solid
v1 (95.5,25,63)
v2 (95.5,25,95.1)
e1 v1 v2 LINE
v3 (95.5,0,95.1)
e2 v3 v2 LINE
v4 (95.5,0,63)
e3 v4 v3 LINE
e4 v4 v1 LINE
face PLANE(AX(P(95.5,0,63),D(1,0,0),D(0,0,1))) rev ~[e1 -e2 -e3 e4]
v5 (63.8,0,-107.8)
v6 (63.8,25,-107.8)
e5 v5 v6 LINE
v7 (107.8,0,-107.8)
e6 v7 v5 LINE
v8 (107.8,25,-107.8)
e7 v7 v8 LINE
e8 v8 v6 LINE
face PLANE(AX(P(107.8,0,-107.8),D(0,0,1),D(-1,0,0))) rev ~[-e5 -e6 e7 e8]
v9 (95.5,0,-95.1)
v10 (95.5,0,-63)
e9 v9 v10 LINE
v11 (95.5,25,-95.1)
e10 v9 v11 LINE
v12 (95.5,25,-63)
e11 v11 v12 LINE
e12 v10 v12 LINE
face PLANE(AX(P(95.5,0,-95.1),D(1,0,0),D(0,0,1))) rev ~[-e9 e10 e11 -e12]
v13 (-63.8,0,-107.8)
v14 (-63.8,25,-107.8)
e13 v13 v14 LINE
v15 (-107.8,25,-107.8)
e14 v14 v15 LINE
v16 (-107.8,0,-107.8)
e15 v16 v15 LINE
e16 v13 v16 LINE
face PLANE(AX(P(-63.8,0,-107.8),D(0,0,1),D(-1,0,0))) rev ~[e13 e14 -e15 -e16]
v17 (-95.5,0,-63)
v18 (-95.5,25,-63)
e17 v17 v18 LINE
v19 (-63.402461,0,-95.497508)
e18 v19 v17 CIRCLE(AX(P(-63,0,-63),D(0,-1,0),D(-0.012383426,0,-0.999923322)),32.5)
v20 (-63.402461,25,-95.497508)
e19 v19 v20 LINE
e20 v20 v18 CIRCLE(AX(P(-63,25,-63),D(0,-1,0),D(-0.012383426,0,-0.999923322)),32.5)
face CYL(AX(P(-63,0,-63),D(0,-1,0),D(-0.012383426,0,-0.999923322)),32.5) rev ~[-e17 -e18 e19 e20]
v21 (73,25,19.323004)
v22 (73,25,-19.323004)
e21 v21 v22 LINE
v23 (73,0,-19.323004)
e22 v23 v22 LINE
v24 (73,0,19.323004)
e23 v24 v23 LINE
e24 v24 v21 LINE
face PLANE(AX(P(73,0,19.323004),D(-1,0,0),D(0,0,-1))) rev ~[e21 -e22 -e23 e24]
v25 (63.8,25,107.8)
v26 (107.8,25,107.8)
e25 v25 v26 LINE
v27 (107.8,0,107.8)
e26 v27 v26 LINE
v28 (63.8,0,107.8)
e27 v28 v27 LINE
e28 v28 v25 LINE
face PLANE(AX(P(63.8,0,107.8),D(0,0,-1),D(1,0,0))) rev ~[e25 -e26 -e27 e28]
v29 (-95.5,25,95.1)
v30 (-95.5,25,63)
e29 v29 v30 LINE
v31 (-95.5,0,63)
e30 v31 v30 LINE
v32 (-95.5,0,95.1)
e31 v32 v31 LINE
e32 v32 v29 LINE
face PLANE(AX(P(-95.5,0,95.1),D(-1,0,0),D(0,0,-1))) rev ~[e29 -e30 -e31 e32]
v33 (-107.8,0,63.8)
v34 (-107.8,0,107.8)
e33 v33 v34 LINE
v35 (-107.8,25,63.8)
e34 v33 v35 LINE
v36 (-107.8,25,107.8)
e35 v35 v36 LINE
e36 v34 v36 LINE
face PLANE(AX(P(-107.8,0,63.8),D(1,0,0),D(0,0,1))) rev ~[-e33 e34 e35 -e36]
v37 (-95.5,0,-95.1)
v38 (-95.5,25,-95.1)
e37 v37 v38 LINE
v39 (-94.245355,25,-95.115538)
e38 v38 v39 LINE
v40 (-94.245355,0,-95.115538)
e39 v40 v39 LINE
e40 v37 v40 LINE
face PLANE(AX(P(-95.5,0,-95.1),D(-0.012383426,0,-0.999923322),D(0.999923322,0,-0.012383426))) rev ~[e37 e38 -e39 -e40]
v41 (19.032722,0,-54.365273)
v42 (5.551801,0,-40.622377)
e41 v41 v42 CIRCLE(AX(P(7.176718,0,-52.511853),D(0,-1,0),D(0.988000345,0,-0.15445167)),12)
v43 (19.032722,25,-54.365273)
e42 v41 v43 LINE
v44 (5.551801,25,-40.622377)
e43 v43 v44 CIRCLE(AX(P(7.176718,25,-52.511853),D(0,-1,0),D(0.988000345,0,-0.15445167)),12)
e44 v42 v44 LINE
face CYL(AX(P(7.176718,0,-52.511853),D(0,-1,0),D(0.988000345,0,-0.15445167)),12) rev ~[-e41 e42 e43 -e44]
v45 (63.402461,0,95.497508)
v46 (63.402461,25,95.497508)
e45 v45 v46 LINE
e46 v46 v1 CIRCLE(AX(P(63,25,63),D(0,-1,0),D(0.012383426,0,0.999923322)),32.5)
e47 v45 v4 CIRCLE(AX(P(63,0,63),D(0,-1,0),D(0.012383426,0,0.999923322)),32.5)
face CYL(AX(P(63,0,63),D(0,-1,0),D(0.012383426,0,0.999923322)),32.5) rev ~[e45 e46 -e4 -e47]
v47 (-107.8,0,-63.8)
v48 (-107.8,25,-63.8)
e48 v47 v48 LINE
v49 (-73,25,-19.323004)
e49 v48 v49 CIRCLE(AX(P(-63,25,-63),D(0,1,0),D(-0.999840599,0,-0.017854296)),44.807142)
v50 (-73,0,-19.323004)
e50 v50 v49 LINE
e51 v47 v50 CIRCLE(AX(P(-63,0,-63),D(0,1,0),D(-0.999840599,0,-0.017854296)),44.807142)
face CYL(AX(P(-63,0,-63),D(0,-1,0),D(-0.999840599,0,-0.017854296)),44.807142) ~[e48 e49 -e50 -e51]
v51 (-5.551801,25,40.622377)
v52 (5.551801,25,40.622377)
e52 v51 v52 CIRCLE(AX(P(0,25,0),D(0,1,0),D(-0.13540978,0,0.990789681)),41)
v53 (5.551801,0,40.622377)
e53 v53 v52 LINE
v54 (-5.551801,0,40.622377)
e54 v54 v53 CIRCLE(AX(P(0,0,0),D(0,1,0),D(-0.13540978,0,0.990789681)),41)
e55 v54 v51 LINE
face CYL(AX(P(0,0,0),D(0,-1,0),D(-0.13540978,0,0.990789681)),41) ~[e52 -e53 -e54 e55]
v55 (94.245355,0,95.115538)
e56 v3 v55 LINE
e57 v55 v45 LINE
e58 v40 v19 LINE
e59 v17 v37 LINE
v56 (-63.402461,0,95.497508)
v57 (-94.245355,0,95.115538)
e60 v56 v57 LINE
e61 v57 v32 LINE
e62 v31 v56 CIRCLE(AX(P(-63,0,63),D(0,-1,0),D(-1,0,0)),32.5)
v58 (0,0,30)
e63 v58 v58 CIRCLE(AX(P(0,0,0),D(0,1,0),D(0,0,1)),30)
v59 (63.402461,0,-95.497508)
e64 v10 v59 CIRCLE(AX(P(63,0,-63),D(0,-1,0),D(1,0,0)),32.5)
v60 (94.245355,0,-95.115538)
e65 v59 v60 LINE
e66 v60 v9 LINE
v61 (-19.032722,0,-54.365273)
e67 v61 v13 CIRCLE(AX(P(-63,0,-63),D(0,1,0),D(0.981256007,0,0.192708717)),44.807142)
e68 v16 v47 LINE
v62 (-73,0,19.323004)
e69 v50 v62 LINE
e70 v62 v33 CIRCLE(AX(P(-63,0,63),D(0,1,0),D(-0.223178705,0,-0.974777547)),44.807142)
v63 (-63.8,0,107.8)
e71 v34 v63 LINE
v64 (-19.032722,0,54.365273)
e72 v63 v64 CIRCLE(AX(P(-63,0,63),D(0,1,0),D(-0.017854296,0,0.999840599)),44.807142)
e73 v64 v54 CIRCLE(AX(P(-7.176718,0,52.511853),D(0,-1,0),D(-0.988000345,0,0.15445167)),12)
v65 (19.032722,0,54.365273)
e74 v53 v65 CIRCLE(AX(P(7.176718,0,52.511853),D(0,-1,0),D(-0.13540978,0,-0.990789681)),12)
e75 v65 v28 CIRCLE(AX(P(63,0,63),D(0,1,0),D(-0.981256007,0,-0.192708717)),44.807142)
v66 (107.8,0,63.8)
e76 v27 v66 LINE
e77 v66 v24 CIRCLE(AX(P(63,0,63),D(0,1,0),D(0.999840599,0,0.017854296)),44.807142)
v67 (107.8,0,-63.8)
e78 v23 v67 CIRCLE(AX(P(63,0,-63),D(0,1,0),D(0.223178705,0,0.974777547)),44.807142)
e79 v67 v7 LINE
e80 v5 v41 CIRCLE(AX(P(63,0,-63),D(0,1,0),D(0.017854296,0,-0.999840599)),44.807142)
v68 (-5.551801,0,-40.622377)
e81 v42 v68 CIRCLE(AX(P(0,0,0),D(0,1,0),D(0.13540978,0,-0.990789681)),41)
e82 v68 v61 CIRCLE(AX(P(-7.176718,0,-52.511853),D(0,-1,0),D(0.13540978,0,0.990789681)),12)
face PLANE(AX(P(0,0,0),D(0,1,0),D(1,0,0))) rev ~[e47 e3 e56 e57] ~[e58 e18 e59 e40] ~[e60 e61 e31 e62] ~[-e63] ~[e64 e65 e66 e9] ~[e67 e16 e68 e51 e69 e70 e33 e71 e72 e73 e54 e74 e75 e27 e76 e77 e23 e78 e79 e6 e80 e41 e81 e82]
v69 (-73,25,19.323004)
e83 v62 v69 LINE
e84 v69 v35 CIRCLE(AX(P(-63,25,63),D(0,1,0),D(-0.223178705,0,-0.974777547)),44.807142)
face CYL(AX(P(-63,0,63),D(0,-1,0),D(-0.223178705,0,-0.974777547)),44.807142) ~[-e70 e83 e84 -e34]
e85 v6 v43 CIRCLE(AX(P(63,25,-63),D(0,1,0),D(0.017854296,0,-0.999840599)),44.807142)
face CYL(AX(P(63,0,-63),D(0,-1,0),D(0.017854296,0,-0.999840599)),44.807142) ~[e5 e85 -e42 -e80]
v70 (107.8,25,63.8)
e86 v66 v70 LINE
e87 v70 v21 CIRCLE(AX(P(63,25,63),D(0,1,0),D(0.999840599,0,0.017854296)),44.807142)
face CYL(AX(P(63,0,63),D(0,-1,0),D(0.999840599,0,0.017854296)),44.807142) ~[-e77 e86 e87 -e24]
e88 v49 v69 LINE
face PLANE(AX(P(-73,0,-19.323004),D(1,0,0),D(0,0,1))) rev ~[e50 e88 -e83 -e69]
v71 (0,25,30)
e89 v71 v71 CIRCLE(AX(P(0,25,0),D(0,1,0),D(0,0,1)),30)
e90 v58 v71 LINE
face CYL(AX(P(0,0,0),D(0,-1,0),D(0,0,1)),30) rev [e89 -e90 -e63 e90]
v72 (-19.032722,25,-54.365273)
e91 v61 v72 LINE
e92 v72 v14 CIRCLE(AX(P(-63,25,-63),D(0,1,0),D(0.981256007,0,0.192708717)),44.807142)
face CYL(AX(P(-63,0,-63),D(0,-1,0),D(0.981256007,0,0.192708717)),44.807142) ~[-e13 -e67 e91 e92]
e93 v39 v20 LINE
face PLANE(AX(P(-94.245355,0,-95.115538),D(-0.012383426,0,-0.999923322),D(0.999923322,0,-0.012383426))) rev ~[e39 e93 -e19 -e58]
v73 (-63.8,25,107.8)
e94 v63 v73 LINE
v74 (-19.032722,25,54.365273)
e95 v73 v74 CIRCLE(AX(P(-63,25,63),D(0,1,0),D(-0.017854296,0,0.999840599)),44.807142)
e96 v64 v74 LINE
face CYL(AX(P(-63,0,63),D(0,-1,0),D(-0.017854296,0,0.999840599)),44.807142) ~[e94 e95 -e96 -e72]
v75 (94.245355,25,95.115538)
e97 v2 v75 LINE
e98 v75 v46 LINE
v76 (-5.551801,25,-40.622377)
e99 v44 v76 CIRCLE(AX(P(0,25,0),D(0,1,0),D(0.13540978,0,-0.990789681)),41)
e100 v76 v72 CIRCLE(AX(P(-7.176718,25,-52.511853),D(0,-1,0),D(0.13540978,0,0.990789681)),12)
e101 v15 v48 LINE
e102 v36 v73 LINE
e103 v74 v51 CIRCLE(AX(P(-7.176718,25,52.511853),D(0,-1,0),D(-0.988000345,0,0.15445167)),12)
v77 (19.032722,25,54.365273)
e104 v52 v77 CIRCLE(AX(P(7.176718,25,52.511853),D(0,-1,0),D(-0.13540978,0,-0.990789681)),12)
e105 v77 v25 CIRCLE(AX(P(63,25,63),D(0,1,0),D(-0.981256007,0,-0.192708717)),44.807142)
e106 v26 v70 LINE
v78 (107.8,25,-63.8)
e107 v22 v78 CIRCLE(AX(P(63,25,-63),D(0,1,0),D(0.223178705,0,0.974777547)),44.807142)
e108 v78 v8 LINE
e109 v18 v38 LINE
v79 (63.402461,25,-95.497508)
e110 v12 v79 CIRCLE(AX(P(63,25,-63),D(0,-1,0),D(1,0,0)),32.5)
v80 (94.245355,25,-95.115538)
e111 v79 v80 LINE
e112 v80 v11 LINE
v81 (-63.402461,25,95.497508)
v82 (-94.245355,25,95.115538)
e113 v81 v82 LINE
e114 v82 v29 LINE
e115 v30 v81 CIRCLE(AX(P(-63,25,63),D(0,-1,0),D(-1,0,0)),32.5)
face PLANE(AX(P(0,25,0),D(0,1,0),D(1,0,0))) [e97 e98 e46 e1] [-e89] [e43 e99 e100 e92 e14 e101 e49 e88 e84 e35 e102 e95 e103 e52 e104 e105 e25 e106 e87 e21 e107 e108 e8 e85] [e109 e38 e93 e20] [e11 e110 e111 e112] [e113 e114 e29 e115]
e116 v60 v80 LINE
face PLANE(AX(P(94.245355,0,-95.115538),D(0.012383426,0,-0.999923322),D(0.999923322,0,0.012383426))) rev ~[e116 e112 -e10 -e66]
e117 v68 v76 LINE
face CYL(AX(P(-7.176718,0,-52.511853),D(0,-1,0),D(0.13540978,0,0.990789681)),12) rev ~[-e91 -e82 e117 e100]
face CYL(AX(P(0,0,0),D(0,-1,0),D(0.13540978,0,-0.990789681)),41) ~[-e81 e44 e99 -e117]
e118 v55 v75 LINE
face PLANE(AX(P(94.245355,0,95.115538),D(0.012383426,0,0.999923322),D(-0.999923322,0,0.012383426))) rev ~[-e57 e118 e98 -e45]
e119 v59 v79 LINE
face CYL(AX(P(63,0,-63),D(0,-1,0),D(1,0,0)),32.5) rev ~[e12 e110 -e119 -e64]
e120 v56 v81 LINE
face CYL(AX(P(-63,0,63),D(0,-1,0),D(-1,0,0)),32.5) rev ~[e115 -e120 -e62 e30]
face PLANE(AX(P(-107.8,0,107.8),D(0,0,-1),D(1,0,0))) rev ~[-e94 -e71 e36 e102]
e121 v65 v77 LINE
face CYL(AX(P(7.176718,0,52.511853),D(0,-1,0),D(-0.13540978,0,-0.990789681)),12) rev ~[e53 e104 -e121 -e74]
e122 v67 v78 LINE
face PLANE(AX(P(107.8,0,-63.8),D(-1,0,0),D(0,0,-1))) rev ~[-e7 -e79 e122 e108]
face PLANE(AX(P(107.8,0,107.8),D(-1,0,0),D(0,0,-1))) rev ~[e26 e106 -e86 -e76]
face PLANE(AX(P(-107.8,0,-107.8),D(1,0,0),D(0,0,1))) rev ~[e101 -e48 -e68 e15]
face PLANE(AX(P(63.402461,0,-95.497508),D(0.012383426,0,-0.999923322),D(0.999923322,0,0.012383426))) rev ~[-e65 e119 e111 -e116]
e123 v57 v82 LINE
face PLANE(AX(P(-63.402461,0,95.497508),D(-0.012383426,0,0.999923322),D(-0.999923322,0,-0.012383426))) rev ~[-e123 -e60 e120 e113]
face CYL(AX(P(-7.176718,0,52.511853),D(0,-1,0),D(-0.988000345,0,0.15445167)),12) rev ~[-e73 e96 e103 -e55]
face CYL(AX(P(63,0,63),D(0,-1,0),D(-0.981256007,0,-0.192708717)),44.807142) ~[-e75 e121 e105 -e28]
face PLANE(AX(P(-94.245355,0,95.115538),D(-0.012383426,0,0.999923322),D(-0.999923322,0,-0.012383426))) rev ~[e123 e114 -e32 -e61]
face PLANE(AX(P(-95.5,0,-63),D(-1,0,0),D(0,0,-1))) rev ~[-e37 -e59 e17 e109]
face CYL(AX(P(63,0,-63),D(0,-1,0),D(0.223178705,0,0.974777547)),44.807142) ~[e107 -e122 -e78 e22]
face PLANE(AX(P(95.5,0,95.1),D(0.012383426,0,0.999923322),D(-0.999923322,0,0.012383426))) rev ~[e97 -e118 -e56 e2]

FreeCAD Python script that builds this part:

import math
import FreeCAD as App
import Part
import Sketcher

doc = App.newDocument("Part")
body = doc.addObject("PartDesign::Body", "Body")

sketch1 = body.newObject("Sketcher::SketchObject", "Sketch")
sketch1.AttachmentSupport = (doc.getObject("XZ_Plane"), [""])
sketch1.MapMode = "FlatFace"
sketch1.addGeometry([
    Part.LineSegment(App.Vector(-63.8, -107.8, 0), App.Vector(-107.8, -107.8, 0)),
    Part.LineSegment(App.Vector(-107.8, -107.8, 0), App.Vector(-107.8, -63.8, 0)),
    Part.ArcOfCircle(Part.Circle(App.Vector(-63, -63, 0), App.Vector(0, 0, 1), 44.8), math.radians(103), math.radians(181)),
    Part.LineSegment(App.Vector(-73, -19.3, 0), App.Vector(-73, 19.3, 0)),
    Part.ArcOfCircle(Part.Circle(App.Vector(-63, 63, 0), App.Vector(0, 0, 1), 44.8), math.radians(179), math.radians(257)),
    Part.LineSegment(App.Vector(-107.8, 63.8, 0), App.Vector(-107.8, 107.8, 0)),
    Part.LineSegment(App.Vector(-107.8, 107.8, 0), App.Vector(-63.8, 107.8, 0)),
    Part.ArcOfCircle(Part.Circle(App.Vector(-63, 63, 0), App.Vector(0, 0, 1), 44.8), math.radians(-11), math.radians(91)),
    Part.ArcOfCircle(Part.Circle(App.Vector(-7.2, 52.5, 0), App.Vector(0, 0, 1), 12), math.radians(171), math.radians(278)),
    Part.ArcOfCircle(Part.Circle(App.Vector(0, 0, 0), App.Vector(0, 0, 1), 41), math.radians(82.22), math.radians(97.78)),
    Part.ArcOfCircle(Part.Circle(App.Vector(7.2, 52.5, 0), App.Vector(0, 0, 1), 12), math.radians(-98), math.radians(9)),
    Part.ArcOfCircle(Part.Circle(App.Vector(63, 63, 0), App.Vector(0, 0, 1), 44.8), math.radians(89), math.radians(191)),
    Part.LineSegment(App.Vector(63.8, 107.8, 0), App.Vector(107.8, 107.8, 0)),
    Part.LineSegment(App.Vector(107.8, 107.8, 0), App.Vector(107.8, 63.8, 0)),
    Part.ArcOfCircle(Part.Circle(App.Vector(63, 63, 0), App.Vector(0, 0, 1), 44.8), math.radians(-77), math.radians(1)),
    Part.LineSegment(App.Vector(73, 19.3, 0), App.Vector(73, -19.3, 0)),
    Part.ArcOfCircle(Part.Circle(App.Vector(63, -63, 0), App.Vector(0, 0, 1), 44.8), math.radians(-1), math.radians(77)),
    Part.LineSegment(App.Vector(107.8, -63.8, 0), App.Vector(107.8, -107.8, 0)),
    Part.LineSegment(App.Vector(107.8, -107.8, 0), App.Vector(63.8, -107.8, 0)),
    Part.ArcOfCircle(Part.Circle(App.Vector(63, -63, 0), App.Vector(0, 0, 1), 44.8), math.radians(169), math.radians(271)),
    Part.ArcOfCircle(Part.Circle(App.Vector(7.2, -52.5, 0), App.Vector(0, 0, 1), 12), math.radians(-9), math.radians(98)),
    Part.ArcOfCircle(Part.Circle(App.Vector(0, 0, 0), App.Vector(0, 0, 1), 41), math.radians(-97.78), math.radians(-82.22)),
    Part.ArcOfCircle(Part.Circle(App.Vector(-7.2, -52.5, 0), App.Vector(0, 0, 1), 12), math.radians(82), math.radians(189)),
    Part.ArcOfCircle(Part.Circle(App.Vector(-63, -63, 0), App.Vector(0, 0, 1), 44.8), math.radians(-91), math.radians(11)),
    Part.LineSegment(App.Vector(-63.4, 95.5, 0), App.Vector(-94.2, 95.1, 0)),
    Part.LineSegment(App.Vector(-94.2, 95.1, 0), App.Vector(-95.5, 95.1, 0)),
    Part.LineSegment(App.Vector(-95.5, 95.1, 0), App.Vector(-95.5, 63, 0)),
    Part.ArcOfCircle(Part.Circle(App.Vector(-63, 63, 0), App.Vector(0, 0, 1), 32.5), math.radians(180), math.radians(451)),
    Part.LineSegment(App.Vector(95.5, 63, 0), App.Vector(95.5, 95.1, 0)),
    Part.LineSegment(App.Vector(95.5, 95.1, 0), App.Vector(94.2, 95.1, 0)),
    Part.LineSegment(App.Vector(94.2, 95.1, 0), App.Vector(63.4, 95.5, 0)),
    Part.ArcOfCircle(Part.Circle(App.Vector(63, 63, 0), App.Vector(0, 0, 1), 32.5), math.radians(89), math.radians(360)),
    Part.Circle(App.Vector(0, 0, 0), App.Vector(0, 0, 1), 30),
    Part.LineSegment(App.Vector(-95.5, -63, 0), App.Vector(-95.5, -95.1, 0)),
    Part.LineSegment(App.Vector(-95.5, -95.1, 0), App.Vector(-94.2, -95.1, 0)),
    Part.LineSegment(App.Vector(-94.2, -95.1, 0), App.Vector(-63.4, -95.5, 0)),
    Part.ArcOfCircle(Part.Circle(App.Vector(-63, -63, 0), App.Vector(0, 0, 1), 32.5), math.radians(-91), math.radians(180)),
    Part.LineSegment(App.Vector(63.4, -95.5, 0), App.Vector(94.2, -95.1, 0)),
    Part.LineSegment(App.Vector(94.2, -95.1, 0), App.Vector(95.5, -95.1, 0)),
    Part.LineSegment(App.Vector(95.5, -95.1, 0), App.Vector(95.5, -63, 0)),
    Part.ArcOfCircle(Part.Circle(App.Vector(63, -63, 0), App.Vector(0, 0, 1), 32.5), math.radians(0), math.radians(271)),
], False)
sketch1.addConstraint([
    Sketcher.Constraint("Coincident", 0, 2, 1, 1),
    Sketcher.Constraint("Coincident", 1, 2, 2, 2),
    Sketcher.Constraint("Coincident", 2, 1, 3, 1),
    Sketcher.Constraint("Coincident", 3, 2, 4, 2),
    Sketcher.Constraint("Coincident", 4, 1, 5, 1),
    Sketcher.Constraint("Coincident", 5, 2, 6, 1),
    Sketcher.Constraint("Coincident", 6, 2, 7, 2),
    Sketcher.Constraint("Coincident", 7, 1, 8, 1),
    Sketcher.Constraint("Tangent", 8, 2, 9, 2),
    Sketcher.Constraint("Tangent", 9, 1, 10, 1),
    Sketcher.Constraint("Coincident", 10, 2, 11, 2),
    Sketcher.Constraint("Coincident", 11, 1, 12, 1),
    Sketcher.Constraint("Coincident", 12, 2, 13, 1),
    Sketcher.Constraint("Coincident", 13, 2, 14, 2),
    Sketcher.Constraint("Coincident", 14, 1, 15, 1),
    Sketcher.Constraint("Coincident", 15, 2, 16, 2),
    Sketcher.Constraint("Coincident", 16, 1, 17, 1),
    Sketcher.Constraint("Coincident", 17, 2, 18, 1),
    Sketcher.Constraint("Coincident", 18, 2, 19, 2),
    Sketcher.Constraint("Coincident", 19, 1, 20, 1),
    Sketcher.Constraint("Tangent", 20, 2, 21, 2),
    Sketcher.Constraint("Tangent", 21, 1, 22, 1),
    Sketcher.Constraint("Coincident", 22, 2, 23, 2),
    Sketcher.Constraint("Coincident", 23, 1, 0, 1),
    Sketcher.Constraint("Coincident", 24, 2, 25, 1),
    Sketcher.Constraint("Coincident", 25, 2, 26, 1),
    Sketcher.Constraint("Tangent", 26, 2, 27, 1),
    Sketcher.Constraint("Tangent", 27, 2, 24, 1),
    Sketcher.Constraint("Coincident", 28, 2, 29, 1),
    Sketcher.Constraint("Coincident", 29, 2, 30, 1),
    Sketcher.Constraint("Tangent", 30, 2, 31, 1),
    Sketcher.Constraint("Tangent", 31, 2, 28, 1),
    Sketcher.Constraint("Coincident", 33, 2, 34, 1),
    Sketcher.Constraint("Coincident", 34, 2, 35, 1),
    Sketcher.Constraint("Tangent", 35, 2, 36, 1),
    Sketcher.Constraint("Tangent", 36, 2, 33, 1),
    Sketcher.Constraint("Coincident", 37, 2, 38, 1),
    Sketcher.Constraint("Coincident", 38, 2, 39, 1),
    Sketcher.Constraint("Tangent", 39, 2, 40, 1),
    Sketcher.Constraint("Tangent", 40, 2, 37, 1),
    Sketcher.Constraint("Horizontal", 0),
    Sketcher.Constraint("Vertical", 1),
    Sketcher.Constraint("Vertical", 3),
    Sketcher.Constraint("Vertical", 5),
    Sketcher.Constraint("Horizontal", 6),
    Sketcher.Constraint("Horizontal", 12),
    Sketcher.Constraint("Vertical", 13),
    Sketcher.Constraint("Vertical", 15),
    Sketcher.Constraint("Vertical", 17),
    Sketcher.Constraint("Horizontal", 18),
    Sketcher.Constraint("Vertical", 26),
    Sketcher.Constraint("Vertical", 28),
    Sketcher.Constraint("Vertical", 33),
    Sketcher.Constraint("Vertical", 39),
    Sketcher.Constraint("Coincident", 9, 3, -1, 1),
    Sketcher.Constraint("Coincident", 21, 3, -1, 1),
    Sketcher.Constraint("Coincident", 32, 3, -1, 1),
    Sketcher.Constraint("Coincident", 7, 3, 4, 3),
    Sketcher.Constraint("Coincident", 14, 3, 11, 3),
    Sketcher.Constraint("Coincident", 19, 3, 16, 3),
    Sketcher.Constraint("Coincident", 23, 3, 2, 3),
    Sketcher.Constraint("Coincident", 27, 3, 4, 3),
    Sketcher.Constraint("Coincident", 31, 3, 11, 3),
    Sketcher.Constraint("Coincident", 36, 3, 2, 3),
    Sketcher.Constraint("Coincident", 40, 3, 16, 3),
    Sketcher.Constraint("Equal", 2, 4),
    Sketcher.Constraint("Equal", 4, 7),
    Sketcher.Constraint("Equal", 8, 10),
    Sketcher.Constraint("Equal", 7, 11),
    Sketcher.Constraint("Equal", 11, 14),
    Sketcher.Constraint("Equal", 14, 16),
    Sketcher.Constraint("Equal", 16, 19),
    Sketcher.Constraint("Equal", 10, 20),
    Sketcher.Constraint("Equal", 9, 21),
    Sketcher.Constraint("Equal", 20, 22),
    Sketcher.Constraint("Equal", 19, 23),
    Sketcher.Constraint("Equal", 27, 31),
    Sketcher.Constraint("Equal", 31, 36),
    Sketcher.Constraint("Equal", 36, 40),
    Sketcher.Constraint("Symmetric", 2, 3, 11, 3, -1, 1),
    Sketcher.Constraint("Symmetric", 4, 3, 16, 3, -1, 1),
    Sketcher.Constraint("Symmetric", 0, 2, 12, 2, -1, 1),
    Sketcher.Constraint("Symmetric", 5, 2, 17, 2, -1, 1),
    Sketcher.Constraint("Symmetric", 29, 2, 34, 2, -1, 1),
    Sketcher.Constraint("Symmetric", 24, 2, 37, 2, -1, 1),
    Sketcher.Constraint("Symmetric", 4, 3, 11, 3, -2),
    Sketcher.Constraint("Symmetric", 5, 2, 12, 2, -2),
    Sketcher.Constraint("Symmetric", 24, 2, 29, 2, -2),
    Sketcher.Constraint("Parallel", 24, 25),
    Sketcher.Constraint("Parallel", 29, 30),
    Sketcher.Constraint("Parallel", 30, 34),
    Sketcher.Constraint("Parallel", 37, 38),
    Sketcher.Constraint("Horizontal", 8, 3, 10, 3),
    Sketcher.Constraint("Horizontal", 20, 3, 22, 3),
    Sketcher.Constraint("Horizontal", 3, 2, 14, 1),
    Sketcher.Constraint("Vertical", 10, 3, 20, 3),
    Sketcher.Constraint("Equal", 18, 1),
    Sketcher.Constraint("Diameter", 32, 60.0),
    Sketcher.Constraint("Radius", 8, 12.0),
    Sketcher.Constraint("Radius", 9, 41.0),
    Sketcher.Constraint("Radius", 27, 32.5),
    Sketcher.Constraint("DistanceX", 0, 2, 0, 1, 44.0),
    Sketcher.Constraint("DistanceY", 26, 2, 26, 1, 32.1),
    Sketcher.Constraint("DistanceX", 2, 3, -1, 1, 63.0),
    Sketcher.Constraint("DistanceY", 2, 3, -1, 1, 63.0),
    Sketcher.Constraint("DistanceX", 2, 1, -1, 1, 73.0),
    Sketcher.Constraint("DistanceX", 0, 2, -1, 1, 107.8),
    Sketcher.Constraint("DistanceX", 8, 2, -1, 1, 5.551801),
    Sketcher.Constraint("Distance", 24, 30.845259),
])
pad1 = body.newObject("PartDesign::Pad", "Pad")
pad1.Profile = sketch1
pad1.Length = 25
pad1.Reversed = True

doc.recompute()
